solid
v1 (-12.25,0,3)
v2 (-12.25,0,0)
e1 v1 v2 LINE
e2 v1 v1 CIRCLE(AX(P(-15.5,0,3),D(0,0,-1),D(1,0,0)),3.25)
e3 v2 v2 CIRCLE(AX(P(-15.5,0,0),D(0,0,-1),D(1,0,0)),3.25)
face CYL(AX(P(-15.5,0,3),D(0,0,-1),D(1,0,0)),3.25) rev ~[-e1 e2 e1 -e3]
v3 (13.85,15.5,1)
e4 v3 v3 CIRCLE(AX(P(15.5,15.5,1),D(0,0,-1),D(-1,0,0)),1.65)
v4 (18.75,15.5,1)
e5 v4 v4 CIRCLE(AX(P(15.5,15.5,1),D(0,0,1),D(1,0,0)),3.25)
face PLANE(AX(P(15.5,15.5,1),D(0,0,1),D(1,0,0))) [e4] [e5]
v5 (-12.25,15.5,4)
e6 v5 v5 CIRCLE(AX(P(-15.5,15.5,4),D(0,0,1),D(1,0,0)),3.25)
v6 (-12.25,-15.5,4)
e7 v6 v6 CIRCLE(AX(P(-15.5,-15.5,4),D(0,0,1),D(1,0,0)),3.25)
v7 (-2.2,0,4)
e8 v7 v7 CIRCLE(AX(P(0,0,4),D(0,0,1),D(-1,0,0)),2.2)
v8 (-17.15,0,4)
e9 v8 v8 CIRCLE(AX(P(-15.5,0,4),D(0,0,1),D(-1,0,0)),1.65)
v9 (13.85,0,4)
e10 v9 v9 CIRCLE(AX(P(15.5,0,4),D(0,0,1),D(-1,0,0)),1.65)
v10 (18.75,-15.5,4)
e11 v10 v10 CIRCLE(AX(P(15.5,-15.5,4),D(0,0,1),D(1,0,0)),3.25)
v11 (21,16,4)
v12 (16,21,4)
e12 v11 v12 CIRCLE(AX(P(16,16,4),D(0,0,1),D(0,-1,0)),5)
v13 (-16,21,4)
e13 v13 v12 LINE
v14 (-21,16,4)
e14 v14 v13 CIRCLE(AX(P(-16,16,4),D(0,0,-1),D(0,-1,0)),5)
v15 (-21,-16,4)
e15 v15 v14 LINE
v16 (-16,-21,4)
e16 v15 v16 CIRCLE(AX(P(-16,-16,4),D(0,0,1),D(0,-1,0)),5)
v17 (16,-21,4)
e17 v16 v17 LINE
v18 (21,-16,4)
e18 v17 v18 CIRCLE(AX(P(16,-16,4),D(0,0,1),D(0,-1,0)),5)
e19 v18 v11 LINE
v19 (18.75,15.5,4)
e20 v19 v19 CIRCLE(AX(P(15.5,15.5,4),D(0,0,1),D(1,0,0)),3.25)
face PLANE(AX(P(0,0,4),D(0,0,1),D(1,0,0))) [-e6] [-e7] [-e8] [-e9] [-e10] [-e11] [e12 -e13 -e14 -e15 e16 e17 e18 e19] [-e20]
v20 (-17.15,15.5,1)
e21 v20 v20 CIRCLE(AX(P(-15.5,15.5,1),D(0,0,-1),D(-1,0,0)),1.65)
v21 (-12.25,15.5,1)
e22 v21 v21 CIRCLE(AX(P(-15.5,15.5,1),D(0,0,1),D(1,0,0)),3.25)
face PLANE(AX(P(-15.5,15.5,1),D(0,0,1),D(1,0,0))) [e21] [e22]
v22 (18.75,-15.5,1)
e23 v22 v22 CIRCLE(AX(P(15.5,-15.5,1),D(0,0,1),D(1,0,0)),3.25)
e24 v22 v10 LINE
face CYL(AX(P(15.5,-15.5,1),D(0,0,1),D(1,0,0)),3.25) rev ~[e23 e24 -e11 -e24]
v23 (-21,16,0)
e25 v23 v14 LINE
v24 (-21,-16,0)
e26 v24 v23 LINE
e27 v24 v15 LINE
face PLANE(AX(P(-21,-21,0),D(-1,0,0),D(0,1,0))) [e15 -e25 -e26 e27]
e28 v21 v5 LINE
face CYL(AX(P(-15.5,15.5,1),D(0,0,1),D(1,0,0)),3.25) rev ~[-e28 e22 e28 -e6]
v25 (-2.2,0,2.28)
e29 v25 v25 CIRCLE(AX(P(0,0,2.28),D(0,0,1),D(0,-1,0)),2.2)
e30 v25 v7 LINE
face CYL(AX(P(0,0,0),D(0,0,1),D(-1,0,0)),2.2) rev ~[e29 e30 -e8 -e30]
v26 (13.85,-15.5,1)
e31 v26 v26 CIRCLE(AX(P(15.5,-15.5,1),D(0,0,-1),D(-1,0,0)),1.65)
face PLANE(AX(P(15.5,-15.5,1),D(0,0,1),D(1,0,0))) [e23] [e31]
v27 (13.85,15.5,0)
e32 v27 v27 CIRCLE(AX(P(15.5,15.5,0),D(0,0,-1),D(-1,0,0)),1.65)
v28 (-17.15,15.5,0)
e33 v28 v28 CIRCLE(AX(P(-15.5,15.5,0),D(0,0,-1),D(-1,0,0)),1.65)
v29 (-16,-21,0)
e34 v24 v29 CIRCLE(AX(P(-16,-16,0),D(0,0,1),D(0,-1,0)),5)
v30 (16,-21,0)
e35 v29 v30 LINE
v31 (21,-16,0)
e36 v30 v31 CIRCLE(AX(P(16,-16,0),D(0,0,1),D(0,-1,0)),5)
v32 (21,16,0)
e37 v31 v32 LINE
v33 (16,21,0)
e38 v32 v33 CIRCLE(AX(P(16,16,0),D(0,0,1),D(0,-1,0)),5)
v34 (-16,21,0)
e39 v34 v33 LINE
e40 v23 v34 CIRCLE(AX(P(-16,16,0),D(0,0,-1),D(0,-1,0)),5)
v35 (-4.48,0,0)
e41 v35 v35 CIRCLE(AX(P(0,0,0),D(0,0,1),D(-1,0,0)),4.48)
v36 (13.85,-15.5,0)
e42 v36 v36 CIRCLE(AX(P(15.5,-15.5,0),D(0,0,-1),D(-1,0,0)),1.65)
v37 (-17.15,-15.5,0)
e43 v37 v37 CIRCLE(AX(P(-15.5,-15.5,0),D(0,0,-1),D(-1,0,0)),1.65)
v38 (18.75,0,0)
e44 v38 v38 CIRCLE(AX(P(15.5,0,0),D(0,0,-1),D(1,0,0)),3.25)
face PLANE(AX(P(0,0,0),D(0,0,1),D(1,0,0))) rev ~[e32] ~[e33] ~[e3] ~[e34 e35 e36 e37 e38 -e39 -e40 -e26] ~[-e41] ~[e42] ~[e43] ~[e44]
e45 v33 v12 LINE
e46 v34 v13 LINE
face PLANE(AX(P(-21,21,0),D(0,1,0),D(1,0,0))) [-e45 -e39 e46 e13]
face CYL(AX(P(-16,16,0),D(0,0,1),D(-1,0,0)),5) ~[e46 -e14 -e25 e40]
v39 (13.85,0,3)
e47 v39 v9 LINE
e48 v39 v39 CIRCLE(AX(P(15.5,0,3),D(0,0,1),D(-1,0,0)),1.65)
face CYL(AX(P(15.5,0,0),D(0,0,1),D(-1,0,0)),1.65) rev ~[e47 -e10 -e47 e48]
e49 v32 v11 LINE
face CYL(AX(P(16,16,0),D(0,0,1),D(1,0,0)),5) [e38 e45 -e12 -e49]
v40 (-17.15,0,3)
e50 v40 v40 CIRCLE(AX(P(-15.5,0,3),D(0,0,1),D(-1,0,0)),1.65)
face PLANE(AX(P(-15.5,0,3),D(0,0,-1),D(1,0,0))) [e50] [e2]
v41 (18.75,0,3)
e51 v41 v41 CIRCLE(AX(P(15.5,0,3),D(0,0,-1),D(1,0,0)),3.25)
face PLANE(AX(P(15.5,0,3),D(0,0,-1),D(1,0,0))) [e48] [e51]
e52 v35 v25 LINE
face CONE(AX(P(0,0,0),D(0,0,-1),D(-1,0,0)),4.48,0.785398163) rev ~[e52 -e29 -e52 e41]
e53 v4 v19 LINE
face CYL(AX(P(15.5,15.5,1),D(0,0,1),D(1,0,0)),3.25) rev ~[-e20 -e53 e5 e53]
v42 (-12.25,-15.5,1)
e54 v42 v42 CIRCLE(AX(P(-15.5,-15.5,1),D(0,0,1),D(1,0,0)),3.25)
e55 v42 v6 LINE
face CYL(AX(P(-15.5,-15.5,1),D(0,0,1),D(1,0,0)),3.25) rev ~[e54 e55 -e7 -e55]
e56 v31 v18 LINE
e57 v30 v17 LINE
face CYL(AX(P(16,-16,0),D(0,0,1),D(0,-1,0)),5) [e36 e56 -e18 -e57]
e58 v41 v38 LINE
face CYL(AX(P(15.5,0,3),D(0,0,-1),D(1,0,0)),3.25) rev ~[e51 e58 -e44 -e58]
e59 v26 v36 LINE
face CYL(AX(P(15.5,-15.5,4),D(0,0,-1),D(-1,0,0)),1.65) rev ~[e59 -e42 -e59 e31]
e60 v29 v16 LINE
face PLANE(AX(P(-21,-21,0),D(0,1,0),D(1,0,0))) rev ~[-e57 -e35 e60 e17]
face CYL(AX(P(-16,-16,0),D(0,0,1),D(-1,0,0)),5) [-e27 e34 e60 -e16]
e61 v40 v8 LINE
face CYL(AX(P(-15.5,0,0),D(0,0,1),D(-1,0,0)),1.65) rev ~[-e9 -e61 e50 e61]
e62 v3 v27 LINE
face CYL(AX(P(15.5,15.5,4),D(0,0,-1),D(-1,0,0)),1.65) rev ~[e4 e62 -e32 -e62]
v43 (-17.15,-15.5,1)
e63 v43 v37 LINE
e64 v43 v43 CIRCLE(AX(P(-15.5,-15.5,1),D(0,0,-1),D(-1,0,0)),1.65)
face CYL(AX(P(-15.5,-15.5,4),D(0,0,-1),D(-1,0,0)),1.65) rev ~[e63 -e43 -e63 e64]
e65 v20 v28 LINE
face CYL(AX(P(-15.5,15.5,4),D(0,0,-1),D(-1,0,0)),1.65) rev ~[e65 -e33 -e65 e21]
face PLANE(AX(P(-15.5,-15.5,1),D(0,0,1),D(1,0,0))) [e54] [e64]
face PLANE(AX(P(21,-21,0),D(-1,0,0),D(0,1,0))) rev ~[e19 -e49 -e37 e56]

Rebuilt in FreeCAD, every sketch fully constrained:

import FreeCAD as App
import Part
import Sketcher


def edges_at(feature, points):
    """Names of the edges that pass closest to the given points."""
    edges = feature.Shape.Edges
    near = lambda p: min(range(len(edges)), key=lambda i: edges[i].distToShape(Part.Vertex(*p))[0])
    return sorted({f"Edge{near(p) + 1}" for p in points})

doc = App.newDocument("Part")
body = doc.addObject("PartDesign::Body", "Body")

# Sketch on XY plane
sketch1 = doc.addObject("Sketcher::SketchObject", "Sketch")
body.addObject(sketch1)
sketch1.AttachmentSupport = (doc.XY_Plane, [""])
sketch1.MapMode = "FlatFace"
sketch1.addGeometry(Part.LineSegment(App.Vector(-21, 21, 0), App.Vector(-21, -21, 0)), False)
sketch1.addGeometry(Part.LineSegment(App.Vector(-21, -21, 0), App.Vector(21, -21, 0)), False)
sketch1.addGeometry(Part.LineSegment(App.Vector(21, -21, 0), App.Vector(21, 21, 0)), False)
sketch1.addGeometry(Part.LineSegment(App.Vector(21, 21, 0), App.Vector(-21, 21, 0)), False)
sketch1.addConstraint(Sketcher.Constraint("Coincident", 0, 2, 1, 1))
sketch1.addConstraint(Sketcher.Constraint("Coincident", 1, 2, 2, 1))
sketch1.addConstraint(Sketcher.Constraint("Coincident", 2, 2, 3, 1))
sketch1.addConstraint(Sketcher.Constraint("Coincident", 3, 2, 0, 1))
sketch1.addConstraint(Sketcher.Constraint("Vertical", 0))
sketch1.addConstraint(Sketcher.Constraint("Horizontal", 1))
sketch1.addConstraint(Sketcher.Constraint("Vertical", 2))
sketch1.addConstraint(Sketcher.Constraint("Horizontal", 3))
sketch1.addConstraint(Sketcher.Constraint("Symmetric", 0, 2, 2, 2, -1, 1))
sketch1.addConstraint(Sketcher.Constraint("Equal", 3, 0))
sketch1.addConstraint(Sketcher.Constraint("DistanceX", 1, 1, 1, 2, 42.0))
pad1 = doc.addObject("PartDesign::Pad", "Pad")
body.addObject(pad1)
pad1.Profile = sketch1
pad1.Length = 4
doc.recompute()

fillet = doc.addObject("PartDesign::Fillet", "Fillet")
body.addObject(fillet)
fillet.Base = (pad1, edges_at(pad1, [
    (-21, 21, 2),
    (-21, -21, 2),
    (21, -21, 2),
    (21, 21, 2),
]))
fillet.Radius = 5

# Sketch on XY plane
sketch2 = doc.addObject("Sketcher::SketchObject", "Sketch001")
body.addObject(sketch2)
sketch2.AttachmentSupport = (doc.XY_Plane, [""])
sketch2.MapMode = "FlatFace"
sketch2.AttachmentOffset = App.Placement(App.Vector(0, 0, 4), App.Rotation())
sketch2.addGeometry(Part.Circle(App.Vector(-15.5, 15.5, 0), App.Vector(0, 0, 1), 1.6), False)
sketch2.addGeometry(Part.Circle(App.Vector(15.5, 15.5, 0), App.Vector(0, 0, 1), 1.6), False)
sketch2.addGeometry(Part.Circle(App.Vector(15.5, -15.5, 0), App.Vector(0, 0, 1), 1.6), False)
sketch2.addGeometry(Part.Circle(App.Vector(-15.5, -15.5, 0), App.Vector(0, 0, 1), 1.6), False)
sketch2.addConstraint(Sketcher.Constraint("Equal", 0, 1))
sketch2.addConstraint(Sketcher.Constraint("Equal", 1, 2))
sketch2.addConstraint(Sketcher.Constraint("Equal", 2, 3))
sketch2.addConstraint(Sketcher.Constraint("Symmetric", 0, 3, 2, 3, -1, 1))
sketch2.addConstraint(Sketcher.Constraint("Symmetric", 1, 3, 3, 3, -1, 1))
sketch2.addConstraint(Sketcher.Constraint("Symmetric", 0, 3, 1, 3, -2))
sketch2.addConstraint(Sketcher.Constraint("Diameter", 0, 3.3))
sketch2.addConstraint(Sketcher.Constraint("DistanceX", 0, 3, 1, 3, 31.0))
sketch2.addConstraint(Sketcher.Constraint("DistanceY", 2, 3, 1, 3, 31.0))
doc.recompute()
hole = doc.addObject("PartDesign::Hole", "Hole")
body.addObject(hole)
hole.Profile = sketch2
hole.ThreadType = "None"
hole.Diameter = 3.3
hole.DepthType = "ThroughAll"
hole.HoleCutType = "Counterbore"
hole.HoleCutDiameter = 6.5
hole.HoleCutDepth = 3

# Sketch on XY plane
sketch3 = doc.addObject("Sketcher::SketchObject", "Sketch002")
body.addObject(sketch3)
sketch3.AttachmentSupport = (doc.XY_Plane, [""])
sketch3.MapMode = "FlatFace"
sketch3.addGeometry(Part.Circle(App.Vector(0, 0, 0), App.Vector(0, 0, 1), 2.2), False)
sketch3.addConstraint(Sketcher.Constraint("Coincident", 0, 3, -1, 1))
sketch3.addConstraint(Sketcher.Constraint("Diameter", 0, 4.4))
doc.recompute()
hole2 = doc.addObject("PartDesign::Hole", "Hole001")
body.addObject(hole2)
hole2.Profile = sketch3
hole2.ThreadType = "None"
hole2.Diameter = 4.4
hole2.DepthType = "ThroughAll"
hole2.HoleCutType = "Countersink"
hole2.HoleCutDiameter = 8.96
hole2.HoleCutCountersinkAngle = 90
hole2.Reversed = True

# Sketch on XY plane
sketch4 = doc.addObject("Sketcher::SketchObject", "Sketch003")
body.addObject(sketch4)
sketch4.AttachmentSupport = (doc.XY_Plane, [""])
sketch4.MapMode = "FlatFace"
sketch4.addGeometry(Part.Circle(App.Vector(-15.5, 0, 0), App.Vector(0, 0, 1), 1.6), False)
sketch4.addGeometry(Part.Circle(App.Vector(15.5, 0, 0), App.Vector(0, 0, 1), 1.6), False)
sketch4.addConstraint(Sketcher.Constraint("Equal", 0, 1))
sketch4.addConstraint(Sketcher.Constraint("Symmetric", 0, 3, 1, 3, -1, 1))
sketch4.addConstraint(Sketcher.Constraint("PointOnObject", 0, 3, -1))
sketch4.addConstraint(Sketcher.Constraint("Diameter", 0, 3.3))
sketch4.addConstraint(Sketcher.Constraint("DistanceX", 0, 3, 1, 3, 31.0))
doc.recompute()
hole3 = doc.addObject("PartDesign::Hole", "Hole002")
body.addObject(hole3)
hole3.Profile = sketch4
hole3.ThreadType = "None"
hole3.Diameter = 3.3
hole3.DepthType = "ThroughAll"
hole3.HoleCutType = "Counterbore"
hole3.HoleCutDiameter = 6.5
hole3.HoleCutDepth = 3
hole3.Reversed = True

doc.recompute()
